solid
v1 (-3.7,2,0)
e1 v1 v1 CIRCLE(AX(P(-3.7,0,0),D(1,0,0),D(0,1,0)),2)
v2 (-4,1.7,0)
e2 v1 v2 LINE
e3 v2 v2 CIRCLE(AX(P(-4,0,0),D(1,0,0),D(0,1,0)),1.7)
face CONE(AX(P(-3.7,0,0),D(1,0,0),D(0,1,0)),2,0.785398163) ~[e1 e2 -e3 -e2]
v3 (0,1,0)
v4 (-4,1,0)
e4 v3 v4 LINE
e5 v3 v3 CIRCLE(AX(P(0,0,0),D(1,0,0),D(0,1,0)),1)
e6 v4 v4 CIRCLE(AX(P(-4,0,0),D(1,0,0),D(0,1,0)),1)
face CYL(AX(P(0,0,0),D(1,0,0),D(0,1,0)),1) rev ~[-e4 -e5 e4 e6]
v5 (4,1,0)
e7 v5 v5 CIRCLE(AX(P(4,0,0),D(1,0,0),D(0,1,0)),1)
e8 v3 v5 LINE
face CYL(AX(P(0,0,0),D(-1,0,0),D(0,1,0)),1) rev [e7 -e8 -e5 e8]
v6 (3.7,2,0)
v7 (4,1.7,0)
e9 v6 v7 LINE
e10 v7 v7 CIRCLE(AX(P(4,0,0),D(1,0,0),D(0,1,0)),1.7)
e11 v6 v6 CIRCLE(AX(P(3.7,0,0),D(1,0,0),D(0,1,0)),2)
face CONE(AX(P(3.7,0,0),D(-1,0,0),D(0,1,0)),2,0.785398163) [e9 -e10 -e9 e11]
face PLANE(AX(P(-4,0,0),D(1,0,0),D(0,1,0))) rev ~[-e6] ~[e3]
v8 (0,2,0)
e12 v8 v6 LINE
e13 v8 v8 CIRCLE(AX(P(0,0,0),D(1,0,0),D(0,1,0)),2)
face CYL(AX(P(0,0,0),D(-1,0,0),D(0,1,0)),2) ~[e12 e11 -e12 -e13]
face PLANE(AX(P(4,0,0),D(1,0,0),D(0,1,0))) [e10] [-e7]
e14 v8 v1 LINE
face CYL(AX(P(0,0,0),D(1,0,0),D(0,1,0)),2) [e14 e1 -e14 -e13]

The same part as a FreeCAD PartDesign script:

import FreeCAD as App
import Part
import Sketcher
from FreeCAD import Vector


def edges_at(feature, points):
    """Names of the edges that pass closest to the given points."""
    edges = feature.Shape.Edges
    near = lambda p: min(range(len(edges)), key=lambda i: edges[i].distToShape(Part.Vertex(*p))[0])
    return sorted({f"Edge{near(p) + 1}" for p in points})

doc = App.newDocument("Part")
params = doc.addObject("Spreadsheet::Sheet", "Params")
for row, (alias, value) in enumerate([
    ("sketch1_diameter", "4 mm"),
    ("sketch1_diameter2", "2 mm"),
    ("pad1_length", "8 mm"),
    ("chamfer_size", "0.3 mm"),
], start=1):
    params.set(f"A{row}", alias)
    params.set(f"B{row}", "=" + value)
    params.setAlias(f"B{row}", alias)

body = doc.addObject("PartDesign::Body", "Body")

sketch1 = body.newObject("Sketcher::SketchObject", "Sketch")
sketch1.AttachmentSupport = (doc.getObject("YZ_Plane"), [""])
sketch1.MapMode = "FlatFace"
sketch1.addGeometry([
    Part.Circle(Vector(0, 0, 0), Vector(0, 0, 1), 2),
    Part.Circle(Vector(0, 0, 0), Vector(0, 0, 1), 1),
], False)
sketch1.addConstraint([
    Sketcher.Constraint("Coincident", 0, 3, -1, 1),
    Sketcher.Constraint("Coincident", 1, 3, -1, 1),
    Sketcher.Constraint("Diameter", 0, 4.0),
    Sketcher.Constraint("Diameter", 1, 2.0),
])
sketch1.setExpression("Constraints[2]", "Params.sketch1_diameter")
sketch1.setExpression("Constraints[3]", "Params.sketch1_diameter2")
pad1 = body.newObject("PartDesign::Pad", "Pad")
pad1.Profile = sketch1
pad1.setExpression("Length", "Params.pad1_length")
pad1.Midplane = True
doc.recompute()

chamfer = body.newObject("PartDesign::Chamfer", "Chamfer")
chamfer.Base = (pad1, edges_at(pad1, [(4, -2, 0), (-4, -2, 0)]))
chamfer.setExpression("Size", "Params.chamfer_size")

doc.recompute()
